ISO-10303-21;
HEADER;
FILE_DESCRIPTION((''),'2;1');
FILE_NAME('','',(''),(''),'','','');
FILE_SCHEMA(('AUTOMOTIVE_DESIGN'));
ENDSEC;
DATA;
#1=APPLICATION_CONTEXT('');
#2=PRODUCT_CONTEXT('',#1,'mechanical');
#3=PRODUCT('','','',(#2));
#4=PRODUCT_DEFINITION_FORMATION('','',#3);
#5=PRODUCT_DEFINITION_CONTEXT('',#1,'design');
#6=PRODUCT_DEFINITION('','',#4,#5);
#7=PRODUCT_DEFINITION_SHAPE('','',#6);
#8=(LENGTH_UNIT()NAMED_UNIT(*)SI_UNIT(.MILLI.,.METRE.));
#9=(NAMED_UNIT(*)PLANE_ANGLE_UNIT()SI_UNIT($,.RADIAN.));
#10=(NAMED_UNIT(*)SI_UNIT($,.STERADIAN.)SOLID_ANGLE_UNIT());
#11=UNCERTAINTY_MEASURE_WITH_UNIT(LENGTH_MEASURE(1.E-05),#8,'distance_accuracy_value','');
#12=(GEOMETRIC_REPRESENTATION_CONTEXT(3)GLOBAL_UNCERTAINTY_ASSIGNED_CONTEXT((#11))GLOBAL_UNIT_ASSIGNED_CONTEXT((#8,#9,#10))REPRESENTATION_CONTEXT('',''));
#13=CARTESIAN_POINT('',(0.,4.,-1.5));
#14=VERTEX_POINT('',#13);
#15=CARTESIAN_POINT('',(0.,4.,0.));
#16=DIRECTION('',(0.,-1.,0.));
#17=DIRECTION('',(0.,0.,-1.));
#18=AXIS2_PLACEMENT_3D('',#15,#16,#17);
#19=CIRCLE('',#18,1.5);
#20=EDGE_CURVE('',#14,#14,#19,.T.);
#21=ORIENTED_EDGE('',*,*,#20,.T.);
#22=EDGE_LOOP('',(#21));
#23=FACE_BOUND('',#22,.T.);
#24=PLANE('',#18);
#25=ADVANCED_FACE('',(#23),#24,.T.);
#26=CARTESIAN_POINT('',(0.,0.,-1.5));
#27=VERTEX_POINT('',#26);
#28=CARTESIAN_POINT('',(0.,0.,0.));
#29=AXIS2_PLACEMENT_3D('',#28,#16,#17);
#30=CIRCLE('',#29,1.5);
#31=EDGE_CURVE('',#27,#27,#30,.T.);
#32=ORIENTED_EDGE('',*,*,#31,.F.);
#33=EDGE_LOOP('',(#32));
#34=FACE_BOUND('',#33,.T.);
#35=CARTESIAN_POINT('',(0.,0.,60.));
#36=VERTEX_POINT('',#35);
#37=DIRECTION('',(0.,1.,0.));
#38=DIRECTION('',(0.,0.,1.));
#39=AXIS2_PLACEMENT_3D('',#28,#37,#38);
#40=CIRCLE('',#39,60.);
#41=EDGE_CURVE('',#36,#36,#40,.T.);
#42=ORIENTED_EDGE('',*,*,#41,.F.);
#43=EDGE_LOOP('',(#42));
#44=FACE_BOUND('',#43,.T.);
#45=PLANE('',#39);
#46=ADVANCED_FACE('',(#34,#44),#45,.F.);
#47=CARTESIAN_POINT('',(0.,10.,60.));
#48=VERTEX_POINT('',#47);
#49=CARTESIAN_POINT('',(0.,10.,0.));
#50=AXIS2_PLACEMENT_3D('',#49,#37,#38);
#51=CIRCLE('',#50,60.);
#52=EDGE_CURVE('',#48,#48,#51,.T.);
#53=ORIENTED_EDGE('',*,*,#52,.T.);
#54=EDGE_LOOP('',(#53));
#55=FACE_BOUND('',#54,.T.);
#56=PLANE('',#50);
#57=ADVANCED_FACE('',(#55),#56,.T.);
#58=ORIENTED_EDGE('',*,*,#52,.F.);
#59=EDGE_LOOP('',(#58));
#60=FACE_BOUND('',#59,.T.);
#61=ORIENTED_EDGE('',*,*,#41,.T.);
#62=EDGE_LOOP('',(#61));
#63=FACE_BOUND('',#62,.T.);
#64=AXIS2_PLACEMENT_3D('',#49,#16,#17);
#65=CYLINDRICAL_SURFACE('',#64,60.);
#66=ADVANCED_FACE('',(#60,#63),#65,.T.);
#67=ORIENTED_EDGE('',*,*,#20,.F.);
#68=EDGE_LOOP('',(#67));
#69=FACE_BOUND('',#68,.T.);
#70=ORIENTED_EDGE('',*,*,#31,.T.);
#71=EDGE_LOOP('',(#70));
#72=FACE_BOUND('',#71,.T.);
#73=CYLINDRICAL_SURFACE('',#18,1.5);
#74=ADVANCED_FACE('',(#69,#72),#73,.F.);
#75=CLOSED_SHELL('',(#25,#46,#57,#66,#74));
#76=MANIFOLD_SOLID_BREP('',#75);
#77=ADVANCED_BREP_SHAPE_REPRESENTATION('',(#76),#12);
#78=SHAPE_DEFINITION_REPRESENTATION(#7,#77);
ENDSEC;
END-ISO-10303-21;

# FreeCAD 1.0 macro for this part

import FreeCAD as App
import Part
import Sketcher

V = App.Vector
Q = App.Units.Quantity

doc = App.newDocument("Part")
body = doc.addObject("PartDesign::Body", "Body")

# Sketch on XZ plane
sketch1 = body.newObject("Sketcher::SketchObject", "Sketch")
sketch1.AttachmentSupport = (doc.getObject("XZ_Plane"), [""])
sketch1.MapMode = "FlatFace"
sketch1.addGeometry(Part.Circle(V(0, 0, 0), V(0, 0, 1), 60), False)
sketch1.addConstraint(Sketcher.Constraint("Coincident", 0, 3, -1, 1))
sketch1.addConstraint(Sketcher.Constraint("Diameter", 0, Q("120 mm")))
pad1 = body.newObject("PartDesign::Pad", "Pad")
pad1.Profile = sketch1
pad1.Length = 10
pad1.Reversed = True

# Sketch on XZ plane
sketch2 = body.newObject("Sketcher::SketchObject", "Sketch001")
sketch2.AttachmentSupport = (doc.getObject("XZ_Plane"), [""])
sketch2.MapMode = "FlatFace"
sketch2.addGeometry(Part.Circle(V(0, 0, 0), V(0, 0, 1), 1.5), False)
sketch2.addConstraint(Sketcher.Constraint("Coincident", 0, 3, -1, 1))
sketch2.addConstraint(Sketcher.Constraint("Diameter", 0, Q("3 mm")))
pocket1 = body.newObject("PartDesign::Pocket", "Pocket")
pocket1.Profile = sketch2
pocket1.Length = 4

doc.recompute()
